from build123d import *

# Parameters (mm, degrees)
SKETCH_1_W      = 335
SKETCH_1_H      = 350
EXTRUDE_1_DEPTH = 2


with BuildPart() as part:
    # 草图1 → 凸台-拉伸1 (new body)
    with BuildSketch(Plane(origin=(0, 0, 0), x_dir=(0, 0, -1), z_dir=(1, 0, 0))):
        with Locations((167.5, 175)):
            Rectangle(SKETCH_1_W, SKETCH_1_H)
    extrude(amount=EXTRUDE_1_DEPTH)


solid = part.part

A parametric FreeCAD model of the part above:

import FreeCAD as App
import Part
import Sketcher
from FreeCAD import Vector

doc = App.newDocument("Part")
body = doc.addObject("PartDesign::Body", "Body")

sketch1 = body.newObject("Sketcher::SketchObject", "Sketch")
sketch1.AttachmentSupport = (doc.getObject("YZ_Plane"), [""])
sketch1.MapMode = "FlatFace"
sketch1.addGeometry([
    Part.LineSegment(Vector(350, 0, 0), Vector(0, 0, 0)),
    Part.LineSegment(Vector(0, 0, 0), Vector(0, -335, 0)),
    Part.LineSegment(Vector(0, -335, 0), Vector(350, -335, 0)),
    Part.LineSegment(Vector(350, -335, 0), Vector(350, 0, 0)),
], False)
sketch1.addConstraint([
    Sketcher.Constraint("Coincident", 0, 2, 1, 1),
    Sketcher.Constraint("Coincident", 1, 2, 2, 1),
    Sketcher.Constraint("Coincident", 2, 2, 3, 1),
    Sketcher.Constraint("Coincident", 3, 2, 0, 1),
    Sketcher.Constraint("Horizontal", 0),
    Sketcher.Constraint("Vertical", 1),
    Sketcher.Constraint("Horizontal", 2),
    Sketcher.Constraint("Vertical", 3),
    Sketcher.Constraint("Coincident", 0, 2, -1, 1),
    Sketcher.Constraint("DistanceX", 0, 2, 0, 1, 350.0),
    Sketcher.Constraint("DistanceY", 1, 2, 1, 1, 335.0),
])
pad1 = body.newObject("PartDesign::Pad", "Pad")
pad1.Profile = sketch1
pad1.Length = 2

doc.recompute()
